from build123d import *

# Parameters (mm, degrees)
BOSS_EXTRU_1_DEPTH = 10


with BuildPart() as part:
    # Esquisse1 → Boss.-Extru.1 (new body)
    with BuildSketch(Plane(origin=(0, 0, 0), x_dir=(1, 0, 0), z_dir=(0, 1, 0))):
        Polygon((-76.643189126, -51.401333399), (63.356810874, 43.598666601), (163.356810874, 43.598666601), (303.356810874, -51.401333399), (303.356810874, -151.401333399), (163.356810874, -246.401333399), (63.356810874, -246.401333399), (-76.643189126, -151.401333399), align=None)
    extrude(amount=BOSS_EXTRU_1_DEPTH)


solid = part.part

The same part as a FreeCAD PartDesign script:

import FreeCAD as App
import Part
import Sketcher
Q = App.Units.Quantity


def add_polygon(sketch, points):
    """Adds a closed chain of lines whose ends are joined by coincident constraints."""
    first, n = sketch.GeometryCount, len(points)
    for a, b in zip(points, points[1:] + points[:1]):
        sketch.addGeometry(Part.LineSegment(App.Vector(*a, 0), App.Vector(*b, 0)), False)
    for i in range(n):
        sketch.addConstraint(Sketcher.Constraint("Coincident", first + i, 2, first + (i + 1) % n, 1))

doc = App.newDocument("Part")
body = doc.addObject("PartDesign::Body", "Body")

# Sketch on XZ plane
sketch1 = body.newObject("Sketcher::SketchObject", "Sketch")
sketch1.AttachmentSupport = (doc.getObject("XZ_Plane"), [""])
sketch1.MapMode = "FlatFace"
add_polygon(sketch1, [(63, -44), (-77, 51), (-77, 151), (63, 246), (163, 246), (303, 151), (303, 51), (163, -44)])  # lines 0-7
sketch1.addConstraint(Sketcher.Constraint("Vertical", 1))
sketch1.addConstraint(Sketcher.Constraint("Horizontal", 3))
sketch1.addConstraint(Sketcher.Constraint("Vertical", 5))
sketch1.addConstraint(Sketcher.Constraint("Horizontal", 7))
sketch1.addConstraint(Sketcher.Constraint("Parallel", 0, 4))
sketch1.addConstraint(Sketcher.Constraint("Parallel", 2, 6))
sketch1.addConstraint(Sketcher.Constraint("Horizontal", 1, 2, 4, 2))
sketch1.addConstraint(Sketcher.Constraint("Horizontal", 0, 2, 5, 2))
sketch1.addConstraint(Sketcher.Constraint("Vertical", 3, 2, 6, 2))
sketch1.addConstraint(Sketcher.Constraint("Vertical", 2, 2, 7, 2))
sketch1.addConstraint(Sketcher.Constraint("Equal", 7, 1))
sketch1.addConstraint(Sketcher.Constraint("DistanceX", 3, 1, 3, 2, Q("100 mm")))
sketch1.addConstraint(Sketcher.Constraint("DistanceX", 1, 2, 2, 2, Q("140 mm")))
sketch1.addConstraint(Sketcher.Constraint("DistanceY", 1, 2, 2, 2, Q("95 mm")))
sketch1.addConstraint(Sketcher.Constraint("DistanceX", 0, 2, -1, 1, Q("76.643189 mm")))
sketch1.addConstraint(Sketcher.Constraint("DistanceY", -1, 1, 0, 2, Q("51.401333 mm")))
pad1 = body.newObject("PartDesign::Pad", "Pad")
pad1.Profile = sketch1
pad1.Length = 10
pad1.Reversed = True

doc.recompute()
